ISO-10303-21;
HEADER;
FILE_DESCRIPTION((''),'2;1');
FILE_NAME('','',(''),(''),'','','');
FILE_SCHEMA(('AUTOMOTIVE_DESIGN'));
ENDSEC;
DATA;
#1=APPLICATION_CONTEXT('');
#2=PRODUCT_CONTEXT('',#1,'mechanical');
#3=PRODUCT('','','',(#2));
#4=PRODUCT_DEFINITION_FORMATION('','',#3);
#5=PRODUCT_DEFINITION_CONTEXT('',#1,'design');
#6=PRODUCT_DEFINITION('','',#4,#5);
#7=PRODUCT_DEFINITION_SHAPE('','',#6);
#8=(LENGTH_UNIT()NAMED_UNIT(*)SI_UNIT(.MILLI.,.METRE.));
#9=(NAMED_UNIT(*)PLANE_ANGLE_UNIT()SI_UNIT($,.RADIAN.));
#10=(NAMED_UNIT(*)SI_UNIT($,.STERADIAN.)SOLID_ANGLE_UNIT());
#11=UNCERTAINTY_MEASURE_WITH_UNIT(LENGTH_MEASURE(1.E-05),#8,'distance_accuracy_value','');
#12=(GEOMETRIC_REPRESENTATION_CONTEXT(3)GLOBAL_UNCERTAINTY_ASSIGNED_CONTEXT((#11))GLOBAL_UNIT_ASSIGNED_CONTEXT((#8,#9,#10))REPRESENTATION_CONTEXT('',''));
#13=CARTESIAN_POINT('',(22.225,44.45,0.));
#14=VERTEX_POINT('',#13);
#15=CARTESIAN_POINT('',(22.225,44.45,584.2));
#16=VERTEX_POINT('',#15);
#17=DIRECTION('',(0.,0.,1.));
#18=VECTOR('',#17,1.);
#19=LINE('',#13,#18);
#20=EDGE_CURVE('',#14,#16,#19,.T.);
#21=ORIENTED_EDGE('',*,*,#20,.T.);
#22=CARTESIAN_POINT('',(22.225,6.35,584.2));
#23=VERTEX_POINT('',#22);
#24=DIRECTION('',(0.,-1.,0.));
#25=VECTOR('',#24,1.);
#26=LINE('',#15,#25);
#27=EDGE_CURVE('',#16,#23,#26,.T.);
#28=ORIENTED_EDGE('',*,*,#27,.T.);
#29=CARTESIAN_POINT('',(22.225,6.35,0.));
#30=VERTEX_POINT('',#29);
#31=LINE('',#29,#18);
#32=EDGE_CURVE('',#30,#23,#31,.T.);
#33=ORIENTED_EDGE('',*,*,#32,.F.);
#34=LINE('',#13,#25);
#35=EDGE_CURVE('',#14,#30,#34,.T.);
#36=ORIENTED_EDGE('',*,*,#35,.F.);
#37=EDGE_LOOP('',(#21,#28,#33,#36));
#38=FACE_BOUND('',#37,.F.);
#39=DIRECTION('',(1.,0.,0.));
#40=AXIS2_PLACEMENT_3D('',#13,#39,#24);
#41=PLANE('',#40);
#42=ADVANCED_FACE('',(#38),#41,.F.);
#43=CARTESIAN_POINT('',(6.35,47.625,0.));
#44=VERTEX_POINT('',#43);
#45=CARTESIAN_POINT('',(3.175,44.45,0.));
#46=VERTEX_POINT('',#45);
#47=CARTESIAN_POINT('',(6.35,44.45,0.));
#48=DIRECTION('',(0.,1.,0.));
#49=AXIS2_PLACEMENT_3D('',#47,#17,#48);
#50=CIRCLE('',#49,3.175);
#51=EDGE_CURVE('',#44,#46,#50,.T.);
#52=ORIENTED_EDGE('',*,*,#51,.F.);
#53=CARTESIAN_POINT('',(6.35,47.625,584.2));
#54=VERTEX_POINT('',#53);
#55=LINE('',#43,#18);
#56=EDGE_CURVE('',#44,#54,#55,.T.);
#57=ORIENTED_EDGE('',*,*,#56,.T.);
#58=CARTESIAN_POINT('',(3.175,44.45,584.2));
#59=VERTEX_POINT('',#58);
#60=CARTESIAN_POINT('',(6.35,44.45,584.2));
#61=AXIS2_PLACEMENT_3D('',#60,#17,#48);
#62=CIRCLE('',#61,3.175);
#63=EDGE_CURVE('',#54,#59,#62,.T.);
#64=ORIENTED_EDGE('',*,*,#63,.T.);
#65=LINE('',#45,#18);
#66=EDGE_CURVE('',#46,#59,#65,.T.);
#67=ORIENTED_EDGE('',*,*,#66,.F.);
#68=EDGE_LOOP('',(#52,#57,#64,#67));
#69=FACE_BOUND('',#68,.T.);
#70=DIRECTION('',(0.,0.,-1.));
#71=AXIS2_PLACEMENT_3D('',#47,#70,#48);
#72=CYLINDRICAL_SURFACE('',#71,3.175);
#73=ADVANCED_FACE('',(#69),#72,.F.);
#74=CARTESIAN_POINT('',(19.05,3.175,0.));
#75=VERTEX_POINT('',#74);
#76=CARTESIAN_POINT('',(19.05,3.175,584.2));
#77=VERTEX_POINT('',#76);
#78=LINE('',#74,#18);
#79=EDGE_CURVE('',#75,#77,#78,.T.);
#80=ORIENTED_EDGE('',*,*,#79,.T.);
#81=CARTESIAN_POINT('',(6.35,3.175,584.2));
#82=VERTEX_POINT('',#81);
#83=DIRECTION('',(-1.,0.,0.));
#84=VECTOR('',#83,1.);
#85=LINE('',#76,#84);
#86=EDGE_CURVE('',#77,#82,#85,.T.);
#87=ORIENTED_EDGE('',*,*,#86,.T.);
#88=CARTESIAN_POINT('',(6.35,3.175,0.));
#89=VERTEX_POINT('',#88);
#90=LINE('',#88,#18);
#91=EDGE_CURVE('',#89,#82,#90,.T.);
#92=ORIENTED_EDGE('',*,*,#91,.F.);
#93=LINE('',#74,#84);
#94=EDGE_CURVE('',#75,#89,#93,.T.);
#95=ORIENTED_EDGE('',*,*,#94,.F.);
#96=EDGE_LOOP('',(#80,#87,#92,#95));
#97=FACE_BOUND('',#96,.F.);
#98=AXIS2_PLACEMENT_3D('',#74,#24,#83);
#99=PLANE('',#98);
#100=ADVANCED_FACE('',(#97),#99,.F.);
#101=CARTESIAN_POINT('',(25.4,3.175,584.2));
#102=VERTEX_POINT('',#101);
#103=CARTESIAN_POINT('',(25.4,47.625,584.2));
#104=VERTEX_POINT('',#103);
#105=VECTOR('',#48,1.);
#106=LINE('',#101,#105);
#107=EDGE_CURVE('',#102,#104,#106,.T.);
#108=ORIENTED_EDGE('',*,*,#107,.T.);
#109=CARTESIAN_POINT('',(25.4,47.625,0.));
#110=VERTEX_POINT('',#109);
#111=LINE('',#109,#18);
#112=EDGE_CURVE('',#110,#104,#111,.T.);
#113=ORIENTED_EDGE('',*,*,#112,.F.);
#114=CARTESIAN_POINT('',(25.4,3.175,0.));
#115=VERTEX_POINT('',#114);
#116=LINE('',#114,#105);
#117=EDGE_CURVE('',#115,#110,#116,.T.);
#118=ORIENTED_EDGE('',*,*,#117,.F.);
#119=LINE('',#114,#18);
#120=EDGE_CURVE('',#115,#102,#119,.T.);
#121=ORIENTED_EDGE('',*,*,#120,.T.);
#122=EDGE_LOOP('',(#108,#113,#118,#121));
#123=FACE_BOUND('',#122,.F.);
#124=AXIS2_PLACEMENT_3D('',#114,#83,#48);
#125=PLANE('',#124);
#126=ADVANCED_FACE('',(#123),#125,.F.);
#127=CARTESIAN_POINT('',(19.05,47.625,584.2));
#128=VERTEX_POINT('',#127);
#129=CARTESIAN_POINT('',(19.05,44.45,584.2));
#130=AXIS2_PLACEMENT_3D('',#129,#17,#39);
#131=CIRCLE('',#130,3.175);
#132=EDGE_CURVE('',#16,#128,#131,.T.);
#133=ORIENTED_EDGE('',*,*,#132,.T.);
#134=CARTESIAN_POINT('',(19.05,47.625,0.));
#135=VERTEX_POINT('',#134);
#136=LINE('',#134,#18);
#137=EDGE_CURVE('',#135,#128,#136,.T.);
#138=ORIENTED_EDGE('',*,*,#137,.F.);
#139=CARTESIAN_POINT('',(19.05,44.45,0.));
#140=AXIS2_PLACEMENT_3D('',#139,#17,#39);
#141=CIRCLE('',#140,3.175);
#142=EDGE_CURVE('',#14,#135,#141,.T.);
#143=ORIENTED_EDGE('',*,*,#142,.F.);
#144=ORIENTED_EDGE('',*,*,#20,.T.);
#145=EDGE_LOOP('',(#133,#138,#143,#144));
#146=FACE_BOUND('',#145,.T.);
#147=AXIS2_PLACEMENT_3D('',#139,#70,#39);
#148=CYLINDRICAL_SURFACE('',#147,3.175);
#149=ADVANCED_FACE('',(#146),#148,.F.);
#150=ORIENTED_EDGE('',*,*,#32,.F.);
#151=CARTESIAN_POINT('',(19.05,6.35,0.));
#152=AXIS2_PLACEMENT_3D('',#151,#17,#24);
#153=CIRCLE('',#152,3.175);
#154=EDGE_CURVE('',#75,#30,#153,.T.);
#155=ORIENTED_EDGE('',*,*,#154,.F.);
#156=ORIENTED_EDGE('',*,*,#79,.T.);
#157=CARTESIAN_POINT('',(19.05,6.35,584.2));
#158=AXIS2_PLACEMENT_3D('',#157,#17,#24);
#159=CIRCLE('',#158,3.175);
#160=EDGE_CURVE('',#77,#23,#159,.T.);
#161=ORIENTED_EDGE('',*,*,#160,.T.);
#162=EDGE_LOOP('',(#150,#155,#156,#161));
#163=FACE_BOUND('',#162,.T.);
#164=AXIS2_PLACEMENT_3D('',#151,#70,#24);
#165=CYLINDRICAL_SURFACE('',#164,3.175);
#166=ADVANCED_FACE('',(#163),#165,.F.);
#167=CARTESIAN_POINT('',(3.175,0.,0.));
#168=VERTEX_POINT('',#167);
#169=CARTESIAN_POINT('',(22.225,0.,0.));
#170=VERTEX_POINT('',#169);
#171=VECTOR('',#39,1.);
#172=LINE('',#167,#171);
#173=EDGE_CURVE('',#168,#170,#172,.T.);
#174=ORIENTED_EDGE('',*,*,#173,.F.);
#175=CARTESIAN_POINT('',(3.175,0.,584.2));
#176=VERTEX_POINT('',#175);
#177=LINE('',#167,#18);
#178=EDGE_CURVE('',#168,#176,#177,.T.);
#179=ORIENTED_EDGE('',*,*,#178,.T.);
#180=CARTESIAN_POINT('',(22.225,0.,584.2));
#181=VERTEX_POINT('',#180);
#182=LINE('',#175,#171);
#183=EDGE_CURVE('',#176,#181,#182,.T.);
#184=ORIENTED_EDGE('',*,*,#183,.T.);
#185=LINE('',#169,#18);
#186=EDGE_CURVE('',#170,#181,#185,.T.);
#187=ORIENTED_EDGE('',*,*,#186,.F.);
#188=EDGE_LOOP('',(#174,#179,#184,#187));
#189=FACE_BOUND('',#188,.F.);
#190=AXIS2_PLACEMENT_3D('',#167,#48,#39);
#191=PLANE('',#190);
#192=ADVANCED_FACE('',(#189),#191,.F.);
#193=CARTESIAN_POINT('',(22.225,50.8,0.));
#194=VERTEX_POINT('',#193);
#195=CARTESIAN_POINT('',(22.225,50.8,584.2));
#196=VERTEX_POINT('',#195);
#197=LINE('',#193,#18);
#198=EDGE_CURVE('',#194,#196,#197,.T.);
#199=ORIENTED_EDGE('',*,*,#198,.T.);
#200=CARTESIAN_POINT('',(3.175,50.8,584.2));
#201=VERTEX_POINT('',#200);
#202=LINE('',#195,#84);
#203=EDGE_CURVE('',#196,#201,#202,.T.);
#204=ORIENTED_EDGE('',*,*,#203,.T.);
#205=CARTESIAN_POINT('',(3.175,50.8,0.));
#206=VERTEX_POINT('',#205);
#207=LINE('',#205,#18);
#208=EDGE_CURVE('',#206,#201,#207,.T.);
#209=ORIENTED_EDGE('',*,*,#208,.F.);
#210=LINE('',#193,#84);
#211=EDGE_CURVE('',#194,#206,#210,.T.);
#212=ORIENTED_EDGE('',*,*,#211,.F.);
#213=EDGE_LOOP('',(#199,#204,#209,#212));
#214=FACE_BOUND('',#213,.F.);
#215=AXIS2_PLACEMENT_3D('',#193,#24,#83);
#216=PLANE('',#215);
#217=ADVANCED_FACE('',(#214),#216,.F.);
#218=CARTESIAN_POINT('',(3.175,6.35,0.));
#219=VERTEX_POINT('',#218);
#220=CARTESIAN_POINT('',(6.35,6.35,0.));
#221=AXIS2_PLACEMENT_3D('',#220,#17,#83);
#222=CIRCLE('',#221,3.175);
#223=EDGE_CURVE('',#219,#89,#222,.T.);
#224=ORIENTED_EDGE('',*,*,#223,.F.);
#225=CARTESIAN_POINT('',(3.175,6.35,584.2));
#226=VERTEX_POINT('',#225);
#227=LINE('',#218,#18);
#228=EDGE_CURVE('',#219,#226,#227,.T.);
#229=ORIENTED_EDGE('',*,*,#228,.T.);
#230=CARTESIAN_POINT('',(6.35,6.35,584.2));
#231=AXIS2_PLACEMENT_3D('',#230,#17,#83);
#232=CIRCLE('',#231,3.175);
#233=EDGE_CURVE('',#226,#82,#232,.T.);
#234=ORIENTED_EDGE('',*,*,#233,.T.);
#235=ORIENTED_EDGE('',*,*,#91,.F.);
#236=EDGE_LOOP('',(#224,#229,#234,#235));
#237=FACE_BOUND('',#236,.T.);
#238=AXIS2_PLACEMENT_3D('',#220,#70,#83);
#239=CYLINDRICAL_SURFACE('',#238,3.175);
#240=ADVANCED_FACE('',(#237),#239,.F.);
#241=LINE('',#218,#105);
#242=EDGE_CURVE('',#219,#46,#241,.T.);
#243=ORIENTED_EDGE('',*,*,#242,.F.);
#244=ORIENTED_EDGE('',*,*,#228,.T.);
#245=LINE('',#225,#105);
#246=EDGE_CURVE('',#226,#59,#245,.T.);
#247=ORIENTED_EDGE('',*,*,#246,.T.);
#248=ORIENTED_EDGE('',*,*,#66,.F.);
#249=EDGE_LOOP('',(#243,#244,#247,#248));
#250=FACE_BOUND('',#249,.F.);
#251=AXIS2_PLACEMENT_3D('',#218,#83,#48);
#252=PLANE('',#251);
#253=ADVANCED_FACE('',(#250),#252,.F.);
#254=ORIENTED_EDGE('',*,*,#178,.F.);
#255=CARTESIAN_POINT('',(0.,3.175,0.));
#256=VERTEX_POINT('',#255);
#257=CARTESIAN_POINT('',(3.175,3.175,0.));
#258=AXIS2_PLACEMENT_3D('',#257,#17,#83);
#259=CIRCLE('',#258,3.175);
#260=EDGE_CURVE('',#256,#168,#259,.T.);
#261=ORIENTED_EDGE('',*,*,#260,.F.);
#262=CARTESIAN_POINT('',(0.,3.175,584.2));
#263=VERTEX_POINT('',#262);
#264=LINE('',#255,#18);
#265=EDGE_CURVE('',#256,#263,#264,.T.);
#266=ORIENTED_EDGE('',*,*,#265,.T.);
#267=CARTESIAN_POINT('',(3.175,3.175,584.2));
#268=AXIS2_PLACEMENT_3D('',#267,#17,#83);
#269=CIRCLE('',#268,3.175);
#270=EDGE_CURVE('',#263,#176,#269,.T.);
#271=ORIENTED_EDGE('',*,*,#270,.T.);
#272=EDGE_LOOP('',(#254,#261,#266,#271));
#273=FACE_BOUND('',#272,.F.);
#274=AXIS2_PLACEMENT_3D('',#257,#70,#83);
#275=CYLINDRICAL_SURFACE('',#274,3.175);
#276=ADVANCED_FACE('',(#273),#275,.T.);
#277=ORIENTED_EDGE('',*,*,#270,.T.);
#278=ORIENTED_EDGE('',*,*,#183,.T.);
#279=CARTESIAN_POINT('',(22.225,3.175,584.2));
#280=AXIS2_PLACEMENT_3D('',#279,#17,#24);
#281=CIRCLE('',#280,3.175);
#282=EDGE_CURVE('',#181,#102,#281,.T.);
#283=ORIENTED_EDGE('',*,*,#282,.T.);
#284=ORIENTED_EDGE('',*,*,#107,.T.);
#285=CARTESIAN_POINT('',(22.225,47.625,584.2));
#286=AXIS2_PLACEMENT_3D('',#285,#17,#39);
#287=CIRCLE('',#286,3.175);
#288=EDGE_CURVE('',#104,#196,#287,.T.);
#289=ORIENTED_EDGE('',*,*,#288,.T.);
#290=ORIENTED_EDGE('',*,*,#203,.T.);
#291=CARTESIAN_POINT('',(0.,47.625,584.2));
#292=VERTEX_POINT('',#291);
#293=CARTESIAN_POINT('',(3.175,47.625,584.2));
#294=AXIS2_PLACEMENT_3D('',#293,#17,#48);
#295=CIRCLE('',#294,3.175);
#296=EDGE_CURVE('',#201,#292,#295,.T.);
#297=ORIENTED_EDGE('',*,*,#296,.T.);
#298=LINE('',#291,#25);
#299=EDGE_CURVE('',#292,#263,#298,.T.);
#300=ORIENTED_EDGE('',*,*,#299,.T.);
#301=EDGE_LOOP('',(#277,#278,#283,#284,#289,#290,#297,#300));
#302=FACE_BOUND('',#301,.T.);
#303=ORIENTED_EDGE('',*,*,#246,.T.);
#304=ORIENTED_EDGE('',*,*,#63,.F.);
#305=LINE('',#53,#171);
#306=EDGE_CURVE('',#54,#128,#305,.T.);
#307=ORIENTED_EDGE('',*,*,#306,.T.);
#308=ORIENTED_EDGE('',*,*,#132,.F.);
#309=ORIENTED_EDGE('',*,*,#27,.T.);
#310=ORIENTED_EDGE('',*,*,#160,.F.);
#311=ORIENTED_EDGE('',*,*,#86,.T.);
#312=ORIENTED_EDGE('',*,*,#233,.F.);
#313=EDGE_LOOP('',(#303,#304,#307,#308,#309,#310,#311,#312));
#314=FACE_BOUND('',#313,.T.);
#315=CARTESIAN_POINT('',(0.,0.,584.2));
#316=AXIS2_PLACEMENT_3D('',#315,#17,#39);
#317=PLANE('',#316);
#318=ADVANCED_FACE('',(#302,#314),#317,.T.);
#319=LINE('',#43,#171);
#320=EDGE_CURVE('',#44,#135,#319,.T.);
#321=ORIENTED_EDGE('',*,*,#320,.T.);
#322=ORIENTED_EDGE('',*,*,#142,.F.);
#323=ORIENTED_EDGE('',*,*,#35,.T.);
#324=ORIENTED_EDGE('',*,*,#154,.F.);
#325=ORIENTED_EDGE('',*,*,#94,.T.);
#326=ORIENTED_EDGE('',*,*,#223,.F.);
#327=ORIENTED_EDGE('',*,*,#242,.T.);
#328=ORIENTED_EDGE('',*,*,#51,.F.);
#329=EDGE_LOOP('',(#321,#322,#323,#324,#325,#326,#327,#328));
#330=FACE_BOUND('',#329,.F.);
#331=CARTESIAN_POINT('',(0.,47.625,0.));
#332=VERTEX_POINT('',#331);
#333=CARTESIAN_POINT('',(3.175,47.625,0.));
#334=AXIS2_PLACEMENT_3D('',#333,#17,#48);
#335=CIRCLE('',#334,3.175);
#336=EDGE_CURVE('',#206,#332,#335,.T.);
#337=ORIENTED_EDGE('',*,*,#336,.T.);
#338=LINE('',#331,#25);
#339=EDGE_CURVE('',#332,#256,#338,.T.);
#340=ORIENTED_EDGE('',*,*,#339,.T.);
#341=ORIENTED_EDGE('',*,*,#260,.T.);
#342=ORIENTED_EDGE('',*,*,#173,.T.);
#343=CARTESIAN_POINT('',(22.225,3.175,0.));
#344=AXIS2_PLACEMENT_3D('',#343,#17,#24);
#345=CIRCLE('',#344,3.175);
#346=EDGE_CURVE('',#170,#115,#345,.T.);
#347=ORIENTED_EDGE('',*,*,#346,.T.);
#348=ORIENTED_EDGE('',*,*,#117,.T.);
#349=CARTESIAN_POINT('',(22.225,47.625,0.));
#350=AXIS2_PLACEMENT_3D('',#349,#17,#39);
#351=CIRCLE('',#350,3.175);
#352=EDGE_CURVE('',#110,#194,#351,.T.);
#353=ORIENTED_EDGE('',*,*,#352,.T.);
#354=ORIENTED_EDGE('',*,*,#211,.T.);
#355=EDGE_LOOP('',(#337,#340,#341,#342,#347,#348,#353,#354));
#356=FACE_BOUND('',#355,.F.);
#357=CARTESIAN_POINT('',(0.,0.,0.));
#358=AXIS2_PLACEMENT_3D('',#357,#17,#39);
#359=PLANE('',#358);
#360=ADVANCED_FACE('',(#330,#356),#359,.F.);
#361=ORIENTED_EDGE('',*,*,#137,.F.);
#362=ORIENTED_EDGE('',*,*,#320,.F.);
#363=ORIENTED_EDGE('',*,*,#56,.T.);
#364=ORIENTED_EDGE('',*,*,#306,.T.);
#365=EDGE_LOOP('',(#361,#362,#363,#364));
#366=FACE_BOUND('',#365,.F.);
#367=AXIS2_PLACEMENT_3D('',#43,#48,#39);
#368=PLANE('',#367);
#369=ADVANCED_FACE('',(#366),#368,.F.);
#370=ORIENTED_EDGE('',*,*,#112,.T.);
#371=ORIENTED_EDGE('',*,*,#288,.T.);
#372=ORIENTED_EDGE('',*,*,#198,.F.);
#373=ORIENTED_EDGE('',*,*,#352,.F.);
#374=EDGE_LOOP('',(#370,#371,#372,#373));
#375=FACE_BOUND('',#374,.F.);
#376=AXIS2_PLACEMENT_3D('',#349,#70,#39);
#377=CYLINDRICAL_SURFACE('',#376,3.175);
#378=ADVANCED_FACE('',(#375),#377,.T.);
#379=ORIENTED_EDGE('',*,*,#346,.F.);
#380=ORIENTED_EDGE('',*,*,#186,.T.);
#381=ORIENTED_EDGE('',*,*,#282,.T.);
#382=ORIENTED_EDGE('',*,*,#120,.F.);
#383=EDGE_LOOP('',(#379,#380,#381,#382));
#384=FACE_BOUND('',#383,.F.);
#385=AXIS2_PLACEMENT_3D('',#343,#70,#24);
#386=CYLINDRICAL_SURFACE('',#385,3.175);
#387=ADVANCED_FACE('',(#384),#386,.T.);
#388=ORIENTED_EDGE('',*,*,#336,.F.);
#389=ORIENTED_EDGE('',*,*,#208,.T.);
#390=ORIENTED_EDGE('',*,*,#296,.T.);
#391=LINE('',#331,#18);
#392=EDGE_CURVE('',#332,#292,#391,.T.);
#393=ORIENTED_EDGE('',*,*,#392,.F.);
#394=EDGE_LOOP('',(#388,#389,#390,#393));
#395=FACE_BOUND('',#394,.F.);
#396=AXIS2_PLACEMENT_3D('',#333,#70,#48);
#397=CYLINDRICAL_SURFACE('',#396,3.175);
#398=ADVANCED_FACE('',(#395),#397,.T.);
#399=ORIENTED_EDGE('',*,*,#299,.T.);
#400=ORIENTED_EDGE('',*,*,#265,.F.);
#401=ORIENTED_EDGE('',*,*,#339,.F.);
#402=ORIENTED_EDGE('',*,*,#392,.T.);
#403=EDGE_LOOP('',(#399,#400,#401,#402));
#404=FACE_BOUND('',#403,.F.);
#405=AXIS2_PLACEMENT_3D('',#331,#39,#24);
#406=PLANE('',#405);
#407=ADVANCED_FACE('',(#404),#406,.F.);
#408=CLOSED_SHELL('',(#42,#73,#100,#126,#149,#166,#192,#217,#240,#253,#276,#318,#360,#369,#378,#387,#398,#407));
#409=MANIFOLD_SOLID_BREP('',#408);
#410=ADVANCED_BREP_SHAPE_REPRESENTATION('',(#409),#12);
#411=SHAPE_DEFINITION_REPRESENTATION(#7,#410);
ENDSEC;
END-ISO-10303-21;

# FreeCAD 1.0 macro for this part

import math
import FreeCAD as App
import Part
import Sketcher
Q = App.Units.Quantity

doc = App.newDocument("Part")
body = doc.addObject("PartDesign::Body", "Body")

sketch1 = body.newObject("Sketcher::SketchObject", "Sketch")
sketch1.AttachmentSupport = (doc.getObject("XY_Plane"), [""])
sketch1.MapMode = "FlatFace"
sketch1.addGeometry([
    Part.ArcOfCircle(Part.Circle(App.Vector(3.2, 3.2, 0), App.Vector(0, 0, 1), 3.2), math.radians(180), math.radians(270)),
    Part.LineSegment(App.Vector(3.2, 0, 0), App.Vector(22.2, 0, 0)),
    Part.ArcOfCircle(Part.Circle(App.Vector(22.2, 3.2, 0), App.Vector(0, 0, 1), 3.2), math.radians(-90), math.radians(0)),
    Part.LineSegment(App.Vector(25.4, 3.2, 0), App.Vector(25.4, 47.6, 0)),
    Part.ArcOfCircle(Part.Circle(App.Vector(22.2, 47.6, 0), App.Vector(0, 0, 1), 3.2), math.radians(0), math.radians(90)),
    Part.LineSegment(App.Vector(22.2, 50.8, 0), App.Vector(3.2, 50.8, 0)),
    Part.ArcOfCircle(Part.Circle(App.Vector(3.2, 47.6, 0), App.Vector(0, 0, 1), 3.2), math.radians(90), math.radians(180)),
    Part.LineSegment(App.Vector(0, 47.6, 0), App.Vector(0, 3.2, 0)),
    Part.ArcOfCircle(Part.Circle(App.Vector(6.3, 44.5, 0), App.Vector(0, 0, 1), 3.2), math.radians(90), math.radians(180)),
    Part.LineSegment(App.Vector(6.3, 47.6, 0), App.Vector(19.1, 47.6, 0)),
    Part.ArcOfCircle(Part.Circle(App.Vector(19.1, 44.5, 0), App.Vector(0, 0, 1), 3.2), math.radians(0), math.radians(90)),
    Part.LineSegment(App.Vector(22.2, 44.5, 0), App.Vector(22.2, 6.3, 0)),
    Part.ArcOfCircle(Part.Circle(App.Vector(19.1, 6.3, 0), App.Vector(0, 0, 1), 3.2), math.radians(-90), math.radians(0)),
    Part.LineSegment(App.Vector(19.1, 3.2, 0), App.Vector(6.3, 3.2, 0)),
    Part.ArcOfCircle(Part.Circle(App.Vector(6.3, 6.3, 0), App.Vector(0, 0, 1), 3.2), math.radians(180), math.radians(270)),
    Part.LineSegment(App.Vector(3.2, 6.3, 0), App.Vector(3.2, 44.5, 0)),
], False)
sketch1.addConstraint([
    Sketcher.Constraint("Tangent", 0, 2, 1, 1),
    Sketcher.Constraint("Tangent", 1, 2, 2, 1),
    Sketcher.Constraint("Tangent", 2, 2, 3, 1),
    Sketcher.Constraint("Tangent", 3, 2, 4, 1),
    Sketcher.Constraint("Tangent", 4, 2, 5, 1),
    Sketcher.Constraint("Tangent", 5, 2, 6, 1),
    Sketcher.Constraint("Tangent", 6, 2, 7, 1),
    Sketcher.Constraint("Tangent", 7, 2, 0, 1),
    Sketcher.Constraint("Tangent", 8, 1, 9, 1),
    Sketcher.Constraint("Tangent", 9, 2, 10, 2),
    Sketcher.Constraint("Tangent", 10, 1, 11, 1),
    Sketcher.Constraint("Tangent", 11, 2, 12, 2),
    Sketcher.Constraint("Tangent", 12, 1, 13, 1),
    Sketcher.Constraint("Tangent", 13, 2, 14, 2),
    Sketcher.Constraint("Tangent", 14, 1, 15, 1),
    Sketcher.Constraint("Tangent", 15, 2, 8, 2),
    Sketcher.Constraint("Horizontal", 1),
    Sketcher.Constraint("Vertical", 3),
    Sketcher.Constraint("Horizontal", 5),
    Sketcher.Constraint("Vertical", 7),
    Sketcher.Constraint("Horizontal", 9),
    Sketcher.Constraint("Vertical", 11),
    Sketcher.Constraint("Horizontal", 13),
    Sketcher.Constraint("Vertical", 15),
    Sketcher.Constraint("Equal", 0, 2),
    Sketcher.Constraint("Equal", 2, 4),
    Sketcher.Constraint("Equal", 4, 6),
    Sketcher.Constraint("Equal", 6, 8),
    Sketcher.Constraint("Equal", 8, 10),
    Sketcher.Constraint("Equal", 10, 12),
    Sketcher.Constraint("Equal", 12, 14),
    Sketcher.Constraint("PointOnObject", 0, 2, -1),
    Sketcher.Constraint("PointOnObject", 6, 2, -2),
    Sketcher.Constraint("Horizontal", 6, 2, 8, 1),
    Sketcher.Constraint("Horizontal", 7, 2, 12, 1),
    Sketcher.Constraint("Vertical", 4, 2, 10, 1),
    Sketcher.Constraint("Vertical", 5, 2, 14, 1),
    Sketcher.Constraint("DistanceX", -1, 1, 2, 2, Q("1 in")),
    Sketcher.Constraint("DistanceY", -1, 1, 4, 2, Q("2 in")),
    Sketcher.Constraint("Radius", 0, Q("0.125 in")),
])
pad1 = body.newObject("PartDesign::Pad", "Pad")
pad1.Profile = sketch1
pad1.Length = Q("23 in")

doc.recompute()
